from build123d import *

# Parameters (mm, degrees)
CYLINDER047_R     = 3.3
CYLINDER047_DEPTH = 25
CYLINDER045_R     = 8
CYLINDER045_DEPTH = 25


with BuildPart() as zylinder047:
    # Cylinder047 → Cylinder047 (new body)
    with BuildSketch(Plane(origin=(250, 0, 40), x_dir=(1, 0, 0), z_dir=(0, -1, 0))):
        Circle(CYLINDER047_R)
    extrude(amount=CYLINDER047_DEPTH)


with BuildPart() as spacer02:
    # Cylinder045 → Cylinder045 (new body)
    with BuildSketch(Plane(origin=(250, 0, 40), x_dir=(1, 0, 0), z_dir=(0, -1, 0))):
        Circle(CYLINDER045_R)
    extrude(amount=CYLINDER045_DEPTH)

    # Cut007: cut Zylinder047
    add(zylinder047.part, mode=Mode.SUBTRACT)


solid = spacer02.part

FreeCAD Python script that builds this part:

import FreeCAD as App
import Part
import Sketcher

V = App.Vector
Q = App.Units.Quantity

doc = App.newDocument("Part")
params = doc.addObject("Spreadsheet::Sheet", "Params")
for row, (alias, value) in enumerate([
    ("sketch1_diameter", "6.6 mm"),
    ("pad1_length", "25 mm"),
    ("sketch2_diameter", "16 mm"),
    ("pad2_length", "25 mm"),
], start=1):
    params.set(f"A{row}", alias)
    params.set(f"B{row}", "=" + value)
    params.setAlias(f"B{row}", alias)

body = doc.addObject("PartDesign::Body", "Body")

sketch1 = doc.addObject("Sketcher::SketchObject", "Sketch")
body.addObject(sketch1)
sketch1.AttachmentSupport = (doc.XZ_Plane, [""])
sketch1.MapMode = "FlatFace"
sketch1.addGeometry(Part.Circle(V(250, 40, 0), V(0, 0, 1), 3.3), False)
sketch1.addConstraint(Sketcher.Constraint("Diameter", 0, Q("6.6 mm")))
sketch1.addConstraint(Sketcher.Constraint("DistanceX", -1, 1, 0, 3, Q("250 mm")))
sketch1.addConstraint(Sketcher.Constraint("DistanceY", -1, 1, 0, 3, Q("40 mm")))
sketch1.setExpression("Constraints[0]", "Params.sketch1_diameter")
pad1 = doc.addObject("PartDesign::Pad", "Pad")
body.addObject(pad1)
pad1.Profile = sketch1
pad1.setExpression("Length", "Params.pad1_length")
body2 = doc.addObject("PartDesign::Body", "Body001")

sketch2 = doc.addObject("Sketcher::SketchObject", "Sketch001")
body2.addObject(sketch2)
sketch2.AttachmentSupport = (doc.getObject("XZ_Plane001"), [""])
sketch2.MapMode = "FlatFace"
sketch2.addGeometry(Part.Circle(V(250, 40, 0), V(0, 0, 1), 8), False)
sketch2.addConstraint(Sketcher.Constraint("Diameter", 0, Q("16 mm")))
sketch2.addConstraint(Sketcher.Constraint("DistanceX", -1, 1, 0, 3, Q("250 mm")))
sketch2.addConstraint(Sketcher.Constraint("DistanceY", -1, 1, 0, 3, Q("40 mm")))
sketch2.setExpression("Constraints[0]", "Params.sketch2_diameter")
pad2 = doc.addObject("PartDesign::Pad", "Pad001")
body2.addObject(pad2)
pad2.Profile = sketch2
pad2.setExpression("Length", "Params.pad2_length")
doc.recompute()

boolean = doc.addObject("PartDesign::Boolean", "Boolean")
body2.addObject(boolean)
boolean.Type = "Cut"
boolean.addObjects([body])

doc.recompute()
